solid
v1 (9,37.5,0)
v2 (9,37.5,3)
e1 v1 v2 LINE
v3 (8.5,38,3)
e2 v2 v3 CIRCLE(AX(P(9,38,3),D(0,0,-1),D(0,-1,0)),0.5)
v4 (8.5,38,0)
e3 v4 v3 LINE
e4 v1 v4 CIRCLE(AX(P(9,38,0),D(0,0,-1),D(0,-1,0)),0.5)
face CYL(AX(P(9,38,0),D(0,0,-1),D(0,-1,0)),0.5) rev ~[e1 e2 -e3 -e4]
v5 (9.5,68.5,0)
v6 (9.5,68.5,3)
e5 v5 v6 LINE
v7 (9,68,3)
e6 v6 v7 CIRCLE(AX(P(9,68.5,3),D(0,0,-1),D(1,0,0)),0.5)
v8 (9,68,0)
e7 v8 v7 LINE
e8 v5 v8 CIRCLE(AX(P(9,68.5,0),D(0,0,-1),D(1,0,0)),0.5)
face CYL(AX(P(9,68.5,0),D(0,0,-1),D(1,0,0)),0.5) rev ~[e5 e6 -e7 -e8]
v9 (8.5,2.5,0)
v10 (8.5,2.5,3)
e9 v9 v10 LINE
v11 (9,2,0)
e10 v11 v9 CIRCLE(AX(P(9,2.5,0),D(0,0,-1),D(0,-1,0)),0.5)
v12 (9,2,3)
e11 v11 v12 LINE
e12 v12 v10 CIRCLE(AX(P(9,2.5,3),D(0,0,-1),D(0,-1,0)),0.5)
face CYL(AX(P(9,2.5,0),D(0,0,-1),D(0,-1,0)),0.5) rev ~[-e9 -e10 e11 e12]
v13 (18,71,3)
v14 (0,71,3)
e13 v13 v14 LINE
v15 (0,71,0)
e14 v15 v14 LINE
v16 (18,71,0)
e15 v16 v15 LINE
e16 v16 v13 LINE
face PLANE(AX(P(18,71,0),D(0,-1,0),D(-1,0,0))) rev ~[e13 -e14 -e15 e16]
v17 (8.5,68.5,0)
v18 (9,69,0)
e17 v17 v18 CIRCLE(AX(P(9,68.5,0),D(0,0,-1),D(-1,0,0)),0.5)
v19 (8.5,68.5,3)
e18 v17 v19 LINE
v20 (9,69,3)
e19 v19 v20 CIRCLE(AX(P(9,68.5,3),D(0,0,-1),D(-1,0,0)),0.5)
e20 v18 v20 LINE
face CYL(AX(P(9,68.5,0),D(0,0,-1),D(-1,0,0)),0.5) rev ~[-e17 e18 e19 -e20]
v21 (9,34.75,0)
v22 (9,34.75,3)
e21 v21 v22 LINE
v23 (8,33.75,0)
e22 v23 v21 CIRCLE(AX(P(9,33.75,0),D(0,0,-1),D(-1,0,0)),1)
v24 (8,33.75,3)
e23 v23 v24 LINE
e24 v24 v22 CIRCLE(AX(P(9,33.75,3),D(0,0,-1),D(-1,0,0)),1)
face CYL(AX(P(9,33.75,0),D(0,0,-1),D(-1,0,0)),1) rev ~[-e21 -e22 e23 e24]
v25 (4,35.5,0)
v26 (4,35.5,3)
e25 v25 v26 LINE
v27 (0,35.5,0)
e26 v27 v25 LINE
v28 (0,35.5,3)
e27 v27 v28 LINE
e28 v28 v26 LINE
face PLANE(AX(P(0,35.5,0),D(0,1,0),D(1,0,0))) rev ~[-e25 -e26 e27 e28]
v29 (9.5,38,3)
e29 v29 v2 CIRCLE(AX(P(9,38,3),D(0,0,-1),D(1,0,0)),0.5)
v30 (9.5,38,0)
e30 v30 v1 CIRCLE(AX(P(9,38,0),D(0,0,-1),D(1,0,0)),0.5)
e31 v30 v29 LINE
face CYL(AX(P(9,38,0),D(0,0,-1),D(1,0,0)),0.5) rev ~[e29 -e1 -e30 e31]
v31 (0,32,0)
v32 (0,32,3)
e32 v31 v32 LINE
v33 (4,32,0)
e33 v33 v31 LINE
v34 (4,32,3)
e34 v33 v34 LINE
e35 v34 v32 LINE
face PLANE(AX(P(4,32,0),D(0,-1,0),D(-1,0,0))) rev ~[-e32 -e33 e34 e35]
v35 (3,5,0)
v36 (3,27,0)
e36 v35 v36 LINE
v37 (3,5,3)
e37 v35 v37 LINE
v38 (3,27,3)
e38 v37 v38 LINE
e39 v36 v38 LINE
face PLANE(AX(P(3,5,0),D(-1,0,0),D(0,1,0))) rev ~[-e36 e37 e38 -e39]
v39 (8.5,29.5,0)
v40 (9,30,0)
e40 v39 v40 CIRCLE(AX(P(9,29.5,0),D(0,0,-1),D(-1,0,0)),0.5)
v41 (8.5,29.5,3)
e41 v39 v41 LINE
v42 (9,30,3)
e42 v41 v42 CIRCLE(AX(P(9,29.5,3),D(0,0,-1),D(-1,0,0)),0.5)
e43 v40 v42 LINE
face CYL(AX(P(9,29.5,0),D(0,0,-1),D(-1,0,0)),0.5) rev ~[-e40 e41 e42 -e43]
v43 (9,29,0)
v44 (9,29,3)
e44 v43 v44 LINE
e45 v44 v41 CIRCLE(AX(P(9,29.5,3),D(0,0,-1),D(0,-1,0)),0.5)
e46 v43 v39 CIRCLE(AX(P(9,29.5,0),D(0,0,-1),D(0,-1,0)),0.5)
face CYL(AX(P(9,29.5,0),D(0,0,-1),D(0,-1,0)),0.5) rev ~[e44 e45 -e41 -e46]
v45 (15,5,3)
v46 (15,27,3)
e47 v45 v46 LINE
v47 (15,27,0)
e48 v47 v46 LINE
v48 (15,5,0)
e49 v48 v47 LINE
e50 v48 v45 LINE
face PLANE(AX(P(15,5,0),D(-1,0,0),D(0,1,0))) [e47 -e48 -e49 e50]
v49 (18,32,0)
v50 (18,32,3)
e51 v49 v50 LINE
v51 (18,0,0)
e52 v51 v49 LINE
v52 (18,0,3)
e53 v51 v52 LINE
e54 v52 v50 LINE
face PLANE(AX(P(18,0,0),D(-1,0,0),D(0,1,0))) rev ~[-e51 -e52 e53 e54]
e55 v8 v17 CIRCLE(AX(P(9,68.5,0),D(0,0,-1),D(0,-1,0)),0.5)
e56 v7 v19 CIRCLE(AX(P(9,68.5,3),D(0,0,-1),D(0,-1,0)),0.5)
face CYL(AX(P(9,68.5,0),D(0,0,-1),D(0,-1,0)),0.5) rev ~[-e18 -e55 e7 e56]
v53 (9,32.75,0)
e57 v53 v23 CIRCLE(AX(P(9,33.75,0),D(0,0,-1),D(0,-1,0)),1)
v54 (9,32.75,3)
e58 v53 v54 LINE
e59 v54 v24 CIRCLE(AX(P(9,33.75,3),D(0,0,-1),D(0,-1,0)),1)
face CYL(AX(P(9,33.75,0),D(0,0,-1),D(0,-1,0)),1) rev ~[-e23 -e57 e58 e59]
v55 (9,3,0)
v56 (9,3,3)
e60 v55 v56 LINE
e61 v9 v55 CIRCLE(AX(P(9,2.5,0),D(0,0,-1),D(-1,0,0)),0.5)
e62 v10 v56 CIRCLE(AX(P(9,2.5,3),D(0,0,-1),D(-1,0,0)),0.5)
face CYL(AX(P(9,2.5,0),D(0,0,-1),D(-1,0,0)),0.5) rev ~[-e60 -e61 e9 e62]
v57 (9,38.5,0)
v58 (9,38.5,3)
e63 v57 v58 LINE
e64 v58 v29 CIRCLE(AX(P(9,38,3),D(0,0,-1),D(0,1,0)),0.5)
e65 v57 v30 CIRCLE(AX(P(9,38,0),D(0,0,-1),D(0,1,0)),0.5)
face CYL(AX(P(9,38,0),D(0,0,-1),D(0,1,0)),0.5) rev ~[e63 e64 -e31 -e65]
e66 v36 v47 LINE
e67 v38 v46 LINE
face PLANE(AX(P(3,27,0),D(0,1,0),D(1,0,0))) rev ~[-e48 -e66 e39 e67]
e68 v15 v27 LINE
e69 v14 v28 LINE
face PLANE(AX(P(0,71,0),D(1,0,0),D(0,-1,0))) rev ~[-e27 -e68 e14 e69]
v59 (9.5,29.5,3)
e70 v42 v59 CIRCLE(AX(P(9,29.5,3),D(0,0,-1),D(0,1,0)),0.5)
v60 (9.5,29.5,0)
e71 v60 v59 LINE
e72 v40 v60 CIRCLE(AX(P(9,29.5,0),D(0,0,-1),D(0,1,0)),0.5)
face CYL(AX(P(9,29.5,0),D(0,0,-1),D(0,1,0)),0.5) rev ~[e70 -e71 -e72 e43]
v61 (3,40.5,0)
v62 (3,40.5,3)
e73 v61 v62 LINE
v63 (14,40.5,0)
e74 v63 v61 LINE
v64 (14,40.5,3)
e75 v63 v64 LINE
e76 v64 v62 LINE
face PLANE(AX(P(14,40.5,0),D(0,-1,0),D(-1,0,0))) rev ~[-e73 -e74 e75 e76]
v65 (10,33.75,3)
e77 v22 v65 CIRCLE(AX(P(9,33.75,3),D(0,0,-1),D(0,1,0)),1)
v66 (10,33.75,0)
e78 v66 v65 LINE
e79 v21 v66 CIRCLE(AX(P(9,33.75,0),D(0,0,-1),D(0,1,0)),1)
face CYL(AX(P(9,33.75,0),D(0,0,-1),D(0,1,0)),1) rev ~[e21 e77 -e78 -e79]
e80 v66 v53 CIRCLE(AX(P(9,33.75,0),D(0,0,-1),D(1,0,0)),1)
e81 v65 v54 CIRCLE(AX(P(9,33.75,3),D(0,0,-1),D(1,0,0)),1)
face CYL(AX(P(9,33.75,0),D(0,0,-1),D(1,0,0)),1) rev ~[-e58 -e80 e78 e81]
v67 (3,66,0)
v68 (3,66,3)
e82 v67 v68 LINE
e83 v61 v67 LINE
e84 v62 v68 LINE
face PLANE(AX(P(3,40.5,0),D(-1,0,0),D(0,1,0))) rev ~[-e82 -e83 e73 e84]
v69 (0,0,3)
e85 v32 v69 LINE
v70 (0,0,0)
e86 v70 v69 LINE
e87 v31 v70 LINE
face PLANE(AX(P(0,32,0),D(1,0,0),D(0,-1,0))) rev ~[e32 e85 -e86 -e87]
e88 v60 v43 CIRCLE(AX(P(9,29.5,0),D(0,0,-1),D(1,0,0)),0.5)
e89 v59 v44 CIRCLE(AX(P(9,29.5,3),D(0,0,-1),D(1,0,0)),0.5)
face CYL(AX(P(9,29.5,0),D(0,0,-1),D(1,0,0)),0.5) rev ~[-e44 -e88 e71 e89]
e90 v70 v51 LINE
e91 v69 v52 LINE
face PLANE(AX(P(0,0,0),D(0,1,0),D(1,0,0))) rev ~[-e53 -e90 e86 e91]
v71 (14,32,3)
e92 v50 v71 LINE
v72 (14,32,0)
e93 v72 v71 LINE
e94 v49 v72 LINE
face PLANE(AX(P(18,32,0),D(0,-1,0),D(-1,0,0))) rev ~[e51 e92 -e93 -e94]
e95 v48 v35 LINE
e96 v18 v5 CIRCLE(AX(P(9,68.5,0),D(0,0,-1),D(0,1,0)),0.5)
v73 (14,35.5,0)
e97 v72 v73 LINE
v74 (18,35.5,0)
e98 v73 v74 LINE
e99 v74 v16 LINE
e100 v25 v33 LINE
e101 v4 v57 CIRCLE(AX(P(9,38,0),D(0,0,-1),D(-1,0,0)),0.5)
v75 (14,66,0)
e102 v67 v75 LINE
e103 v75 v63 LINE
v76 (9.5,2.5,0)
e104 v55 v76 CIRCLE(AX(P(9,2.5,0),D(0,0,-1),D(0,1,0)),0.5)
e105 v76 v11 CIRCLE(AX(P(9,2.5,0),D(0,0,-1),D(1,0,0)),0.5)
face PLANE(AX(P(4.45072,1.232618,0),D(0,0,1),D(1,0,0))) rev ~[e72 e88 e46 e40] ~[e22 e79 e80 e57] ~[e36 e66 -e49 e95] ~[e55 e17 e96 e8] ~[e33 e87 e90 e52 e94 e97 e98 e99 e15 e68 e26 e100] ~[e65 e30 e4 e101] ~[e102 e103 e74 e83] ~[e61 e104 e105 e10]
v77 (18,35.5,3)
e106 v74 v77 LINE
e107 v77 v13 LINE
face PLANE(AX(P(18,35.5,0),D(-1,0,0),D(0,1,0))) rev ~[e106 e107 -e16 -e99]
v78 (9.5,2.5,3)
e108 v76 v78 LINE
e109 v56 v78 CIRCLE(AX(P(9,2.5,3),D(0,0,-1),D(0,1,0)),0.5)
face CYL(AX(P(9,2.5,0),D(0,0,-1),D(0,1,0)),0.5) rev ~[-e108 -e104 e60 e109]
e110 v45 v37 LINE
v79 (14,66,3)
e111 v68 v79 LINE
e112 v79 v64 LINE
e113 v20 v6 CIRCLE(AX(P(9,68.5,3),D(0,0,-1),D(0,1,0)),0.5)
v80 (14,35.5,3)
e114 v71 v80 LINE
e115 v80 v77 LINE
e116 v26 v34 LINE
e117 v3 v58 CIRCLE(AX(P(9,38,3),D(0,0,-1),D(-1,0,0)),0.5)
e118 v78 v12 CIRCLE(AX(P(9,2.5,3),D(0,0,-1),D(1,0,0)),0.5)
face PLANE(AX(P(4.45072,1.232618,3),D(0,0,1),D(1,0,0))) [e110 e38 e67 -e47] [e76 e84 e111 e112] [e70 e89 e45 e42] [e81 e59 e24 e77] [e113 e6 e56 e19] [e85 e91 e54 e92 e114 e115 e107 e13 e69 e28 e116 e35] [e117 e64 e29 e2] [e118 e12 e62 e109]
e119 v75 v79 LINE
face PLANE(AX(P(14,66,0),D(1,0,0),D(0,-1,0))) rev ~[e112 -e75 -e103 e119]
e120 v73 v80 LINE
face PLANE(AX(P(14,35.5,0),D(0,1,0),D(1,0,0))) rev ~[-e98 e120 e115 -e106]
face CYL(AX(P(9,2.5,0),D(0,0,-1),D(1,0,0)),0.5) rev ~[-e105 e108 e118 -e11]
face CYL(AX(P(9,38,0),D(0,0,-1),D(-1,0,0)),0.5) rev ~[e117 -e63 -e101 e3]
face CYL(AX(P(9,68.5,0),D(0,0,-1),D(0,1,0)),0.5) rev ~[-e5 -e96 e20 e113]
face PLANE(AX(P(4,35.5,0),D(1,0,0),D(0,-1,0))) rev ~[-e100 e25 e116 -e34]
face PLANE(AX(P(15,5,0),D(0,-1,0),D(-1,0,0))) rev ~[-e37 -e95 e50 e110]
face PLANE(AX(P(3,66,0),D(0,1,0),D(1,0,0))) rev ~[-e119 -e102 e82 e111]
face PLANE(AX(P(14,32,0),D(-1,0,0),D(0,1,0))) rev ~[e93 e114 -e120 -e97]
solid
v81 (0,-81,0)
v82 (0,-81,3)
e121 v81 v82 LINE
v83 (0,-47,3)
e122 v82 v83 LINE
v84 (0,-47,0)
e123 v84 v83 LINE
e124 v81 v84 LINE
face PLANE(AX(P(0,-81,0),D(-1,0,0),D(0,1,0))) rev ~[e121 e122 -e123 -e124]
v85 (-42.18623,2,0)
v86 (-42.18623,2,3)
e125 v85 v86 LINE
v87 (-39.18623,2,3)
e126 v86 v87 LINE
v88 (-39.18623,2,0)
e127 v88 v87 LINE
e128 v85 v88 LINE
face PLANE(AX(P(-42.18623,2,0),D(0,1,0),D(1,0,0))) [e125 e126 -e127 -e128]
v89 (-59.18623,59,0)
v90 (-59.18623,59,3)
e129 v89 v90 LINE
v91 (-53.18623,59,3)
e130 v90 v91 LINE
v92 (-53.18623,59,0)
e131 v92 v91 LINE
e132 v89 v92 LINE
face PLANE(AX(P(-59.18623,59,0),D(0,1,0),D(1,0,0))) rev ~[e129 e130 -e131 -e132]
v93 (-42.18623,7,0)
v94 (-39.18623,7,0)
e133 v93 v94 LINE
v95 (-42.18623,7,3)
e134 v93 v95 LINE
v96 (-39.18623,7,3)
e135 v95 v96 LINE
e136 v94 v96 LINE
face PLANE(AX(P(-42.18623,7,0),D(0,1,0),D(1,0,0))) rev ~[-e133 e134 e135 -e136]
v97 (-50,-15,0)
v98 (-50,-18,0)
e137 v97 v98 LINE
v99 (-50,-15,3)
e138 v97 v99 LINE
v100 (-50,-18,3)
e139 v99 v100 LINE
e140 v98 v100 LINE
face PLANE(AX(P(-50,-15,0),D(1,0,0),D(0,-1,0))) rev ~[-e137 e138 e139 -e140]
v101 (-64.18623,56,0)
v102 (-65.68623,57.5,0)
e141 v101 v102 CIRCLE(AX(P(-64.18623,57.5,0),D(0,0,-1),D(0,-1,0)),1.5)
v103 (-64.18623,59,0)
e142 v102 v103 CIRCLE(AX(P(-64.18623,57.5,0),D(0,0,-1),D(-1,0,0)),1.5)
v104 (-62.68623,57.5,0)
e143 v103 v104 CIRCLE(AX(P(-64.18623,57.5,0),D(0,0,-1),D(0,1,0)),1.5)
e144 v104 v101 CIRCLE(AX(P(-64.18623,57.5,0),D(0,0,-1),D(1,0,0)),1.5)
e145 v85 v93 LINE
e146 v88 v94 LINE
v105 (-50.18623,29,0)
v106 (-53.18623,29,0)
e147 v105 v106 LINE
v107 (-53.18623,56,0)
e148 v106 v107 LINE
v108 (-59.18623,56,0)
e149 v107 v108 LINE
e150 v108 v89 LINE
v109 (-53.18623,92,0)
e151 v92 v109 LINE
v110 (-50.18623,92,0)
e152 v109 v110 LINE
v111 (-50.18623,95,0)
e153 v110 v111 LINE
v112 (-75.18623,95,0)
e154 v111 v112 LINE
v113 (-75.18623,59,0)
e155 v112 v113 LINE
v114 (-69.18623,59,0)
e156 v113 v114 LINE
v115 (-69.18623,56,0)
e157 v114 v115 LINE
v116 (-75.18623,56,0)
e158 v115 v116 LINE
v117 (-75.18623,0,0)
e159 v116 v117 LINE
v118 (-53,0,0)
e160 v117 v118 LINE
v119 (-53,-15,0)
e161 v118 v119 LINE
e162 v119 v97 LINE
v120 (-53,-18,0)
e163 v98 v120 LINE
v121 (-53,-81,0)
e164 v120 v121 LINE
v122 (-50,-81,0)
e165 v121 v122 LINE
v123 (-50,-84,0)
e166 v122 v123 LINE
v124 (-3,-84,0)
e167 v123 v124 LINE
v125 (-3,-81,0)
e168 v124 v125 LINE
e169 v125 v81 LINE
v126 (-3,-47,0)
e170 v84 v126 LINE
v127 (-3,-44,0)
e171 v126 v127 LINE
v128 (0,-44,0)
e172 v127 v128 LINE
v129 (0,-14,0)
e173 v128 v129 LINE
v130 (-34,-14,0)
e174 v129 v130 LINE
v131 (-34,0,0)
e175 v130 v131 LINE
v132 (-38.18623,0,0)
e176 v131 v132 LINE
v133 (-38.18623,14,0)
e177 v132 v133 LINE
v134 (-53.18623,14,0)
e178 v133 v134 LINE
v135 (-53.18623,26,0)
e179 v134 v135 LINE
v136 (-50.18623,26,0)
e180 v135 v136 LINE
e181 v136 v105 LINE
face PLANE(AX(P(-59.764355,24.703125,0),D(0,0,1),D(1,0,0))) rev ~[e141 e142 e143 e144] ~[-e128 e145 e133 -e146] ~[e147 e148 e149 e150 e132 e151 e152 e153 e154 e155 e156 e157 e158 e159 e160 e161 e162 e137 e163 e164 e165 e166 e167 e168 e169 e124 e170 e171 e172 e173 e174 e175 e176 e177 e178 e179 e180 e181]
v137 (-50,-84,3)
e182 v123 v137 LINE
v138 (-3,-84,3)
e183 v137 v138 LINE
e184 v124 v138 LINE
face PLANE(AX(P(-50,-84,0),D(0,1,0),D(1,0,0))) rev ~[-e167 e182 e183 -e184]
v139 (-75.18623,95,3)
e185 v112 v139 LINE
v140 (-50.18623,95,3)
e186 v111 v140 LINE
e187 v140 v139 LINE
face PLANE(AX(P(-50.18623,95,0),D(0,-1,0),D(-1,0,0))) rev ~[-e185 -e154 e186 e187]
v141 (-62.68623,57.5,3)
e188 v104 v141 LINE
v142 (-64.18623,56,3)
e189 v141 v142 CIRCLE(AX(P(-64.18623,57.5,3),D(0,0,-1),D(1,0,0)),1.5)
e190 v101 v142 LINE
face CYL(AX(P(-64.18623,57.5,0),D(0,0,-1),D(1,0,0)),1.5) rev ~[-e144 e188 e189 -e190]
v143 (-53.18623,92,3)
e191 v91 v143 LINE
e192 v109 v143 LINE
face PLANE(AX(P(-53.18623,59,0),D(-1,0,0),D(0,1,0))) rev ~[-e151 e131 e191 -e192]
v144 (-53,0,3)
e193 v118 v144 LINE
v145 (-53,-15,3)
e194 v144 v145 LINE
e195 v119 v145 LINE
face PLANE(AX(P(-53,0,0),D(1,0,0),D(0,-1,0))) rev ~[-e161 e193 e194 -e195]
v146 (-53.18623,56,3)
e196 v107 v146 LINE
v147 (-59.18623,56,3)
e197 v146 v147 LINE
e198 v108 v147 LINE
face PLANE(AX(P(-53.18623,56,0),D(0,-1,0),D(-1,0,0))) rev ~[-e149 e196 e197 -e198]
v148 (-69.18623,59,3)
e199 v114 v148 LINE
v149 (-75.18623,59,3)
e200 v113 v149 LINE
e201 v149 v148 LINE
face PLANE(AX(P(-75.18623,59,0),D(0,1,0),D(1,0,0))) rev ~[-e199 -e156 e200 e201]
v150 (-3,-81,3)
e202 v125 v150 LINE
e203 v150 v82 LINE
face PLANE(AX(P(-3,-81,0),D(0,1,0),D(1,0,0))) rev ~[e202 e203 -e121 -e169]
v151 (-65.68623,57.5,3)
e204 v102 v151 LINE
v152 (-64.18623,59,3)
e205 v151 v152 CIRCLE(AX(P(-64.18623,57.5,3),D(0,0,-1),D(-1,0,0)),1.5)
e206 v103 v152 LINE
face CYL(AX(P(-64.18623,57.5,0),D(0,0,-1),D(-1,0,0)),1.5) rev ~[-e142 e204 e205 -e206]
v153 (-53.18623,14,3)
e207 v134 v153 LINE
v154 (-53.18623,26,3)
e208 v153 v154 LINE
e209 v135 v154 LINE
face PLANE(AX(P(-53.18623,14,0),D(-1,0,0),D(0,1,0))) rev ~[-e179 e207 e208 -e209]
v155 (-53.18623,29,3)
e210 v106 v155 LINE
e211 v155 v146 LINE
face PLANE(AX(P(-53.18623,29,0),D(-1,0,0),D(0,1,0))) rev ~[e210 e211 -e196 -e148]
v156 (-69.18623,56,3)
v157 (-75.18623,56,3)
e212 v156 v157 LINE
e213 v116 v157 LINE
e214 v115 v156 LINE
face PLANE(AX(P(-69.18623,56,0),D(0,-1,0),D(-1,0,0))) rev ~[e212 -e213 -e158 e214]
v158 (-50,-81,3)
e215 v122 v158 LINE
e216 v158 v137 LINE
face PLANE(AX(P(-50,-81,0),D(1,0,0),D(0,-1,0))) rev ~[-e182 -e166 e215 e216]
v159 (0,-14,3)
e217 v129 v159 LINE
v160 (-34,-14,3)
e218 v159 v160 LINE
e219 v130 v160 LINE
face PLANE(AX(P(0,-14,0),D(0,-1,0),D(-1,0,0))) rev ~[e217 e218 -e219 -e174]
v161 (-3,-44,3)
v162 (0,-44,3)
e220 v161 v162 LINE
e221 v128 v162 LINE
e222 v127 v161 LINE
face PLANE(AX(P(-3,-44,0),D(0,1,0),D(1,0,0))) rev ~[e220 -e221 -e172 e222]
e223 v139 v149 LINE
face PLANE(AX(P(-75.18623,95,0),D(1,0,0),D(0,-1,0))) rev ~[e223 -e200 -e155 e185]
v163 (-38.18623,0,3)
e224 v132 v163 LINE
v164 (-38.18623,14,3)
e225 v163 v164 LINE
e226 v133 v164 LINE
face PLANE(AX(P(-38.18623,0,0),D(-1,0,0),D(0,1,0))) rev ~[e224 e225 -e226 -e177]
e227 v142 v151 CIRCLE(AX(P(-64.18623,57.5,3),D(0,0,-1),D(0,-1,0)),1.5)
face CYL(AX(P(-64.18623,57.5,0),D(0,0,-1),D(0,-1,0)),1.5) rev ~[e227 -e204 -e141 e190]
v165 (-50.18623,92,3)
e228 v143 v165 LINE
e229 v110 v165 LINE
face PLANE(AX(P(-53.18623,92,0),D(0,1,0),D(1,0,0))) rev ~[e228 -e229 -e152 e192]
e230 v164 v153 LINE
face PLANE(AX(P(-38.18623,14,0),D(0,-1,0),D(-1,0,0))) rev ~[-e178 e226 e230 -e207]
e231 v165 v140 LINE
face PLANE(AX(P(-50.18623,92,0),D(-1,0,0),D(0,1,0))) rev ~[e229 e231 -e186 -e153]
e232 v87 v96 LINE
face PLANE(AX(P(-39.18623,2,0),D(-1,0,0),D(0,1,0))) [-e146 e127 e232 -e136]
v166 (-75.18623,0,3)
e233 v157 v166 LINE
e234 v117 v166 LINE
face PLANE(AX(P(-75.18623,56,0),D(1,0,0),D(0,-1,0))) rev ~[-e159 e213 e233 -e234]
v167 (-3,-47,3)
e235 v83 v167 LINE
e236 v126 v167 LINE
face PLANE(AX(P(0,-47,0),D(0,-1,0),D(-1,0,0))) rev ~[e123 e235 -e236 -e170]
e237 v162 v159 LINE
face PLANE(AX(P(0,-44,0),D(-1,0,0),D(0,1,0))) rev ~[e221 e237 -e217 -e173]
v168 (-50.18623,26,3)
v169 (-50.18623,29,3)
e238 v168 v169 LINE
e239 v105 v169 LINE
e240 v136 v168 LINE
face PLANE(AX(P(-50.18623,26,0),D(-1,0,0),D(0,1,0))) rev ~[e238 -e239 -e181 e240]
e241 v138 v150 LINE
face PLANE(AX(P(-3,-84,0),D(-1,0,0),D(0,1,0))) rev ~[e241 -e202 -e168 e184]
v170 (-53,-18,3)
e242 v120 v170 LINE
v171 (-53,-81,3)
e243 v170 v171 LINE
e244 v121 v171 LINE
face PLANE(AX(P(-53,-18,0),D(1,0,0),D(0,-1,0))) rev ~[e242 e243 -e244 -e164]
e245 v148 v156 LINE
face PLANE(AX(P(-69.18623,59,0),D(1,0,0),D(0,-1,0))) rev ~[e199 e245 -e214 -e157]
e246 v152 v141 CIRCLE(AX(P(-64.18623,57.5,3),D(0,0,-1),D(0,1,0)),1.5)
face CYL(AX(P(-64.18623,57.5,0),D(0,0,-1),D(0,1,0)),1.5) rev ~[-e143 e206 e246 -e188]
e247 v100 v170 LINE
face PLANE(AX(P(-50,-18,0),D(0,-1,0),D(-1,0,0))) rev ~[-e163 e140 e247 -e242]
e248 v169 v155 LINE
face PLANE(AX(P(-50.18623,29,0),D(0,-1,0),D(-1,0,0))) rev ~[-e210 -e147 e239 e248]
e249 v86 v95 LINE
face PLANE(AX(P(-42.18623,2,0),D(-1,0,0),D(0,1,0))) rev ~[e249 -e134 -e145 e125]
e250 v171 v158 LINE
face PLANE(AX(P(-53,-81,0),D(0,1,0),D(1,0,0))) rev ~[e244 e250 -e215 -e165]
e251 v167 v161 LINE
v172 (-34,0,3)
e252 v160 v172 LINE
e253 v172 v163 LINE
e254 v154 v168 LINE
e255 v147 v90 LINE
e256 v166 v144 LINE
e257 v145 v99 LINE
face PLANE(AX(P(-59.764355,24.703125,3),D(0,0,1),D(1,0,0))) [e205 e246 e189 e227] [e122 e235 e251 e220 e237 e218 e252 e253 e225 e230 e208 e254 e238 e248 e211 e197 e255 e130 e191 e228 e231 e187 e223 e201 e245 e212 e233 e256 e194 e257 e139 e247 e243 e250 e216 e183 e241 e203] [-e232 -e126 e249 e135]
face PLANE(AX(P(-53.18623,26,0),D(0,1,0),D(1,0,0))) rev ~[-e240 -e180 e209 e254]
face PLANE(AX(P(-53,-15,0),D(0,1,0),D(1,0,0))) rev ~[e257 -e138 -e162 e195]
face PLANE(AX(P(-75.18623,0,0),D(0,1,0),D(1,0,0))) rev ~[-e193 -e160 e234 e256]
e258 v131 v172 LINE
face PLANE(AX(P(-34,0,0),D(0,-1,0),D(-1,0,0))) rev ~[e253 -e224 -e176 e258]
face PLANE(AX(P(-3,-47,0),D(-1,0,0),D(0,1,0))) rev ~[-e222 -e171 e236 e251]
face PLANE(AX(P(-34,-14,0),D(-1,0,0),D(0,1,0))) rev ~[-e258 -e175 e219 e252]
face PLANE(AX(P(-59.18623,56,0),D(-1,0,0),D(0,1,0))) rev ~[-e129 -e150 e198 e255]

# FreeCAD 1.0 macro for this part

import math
import FreeCAD as App
import Part
import Sketcher
Q = App.Units.Quantity

doc = App.newDocument("Part")
body = doc.addObject("PartDesign::Body", "Body")

sketch1 = body.newObject("Sketcher::SketchObject", "Sketch")
sketch1.AttachmentSupport = (doc.getObject("XY_Plane"), [""])
sketch1.MapMode = "FlatFace"
sketch1.addGeometry(Part.LineSegment(App.Vector(0, 0, 0), App.Vector(18, 0, 0)), False)
sketch1.addGeometry(Part.LineSegment(App.Vector(18, 0, 0), App.Vector(18, 32, 0)), False)
sketch1.addGeometry(Part.LineSegment(App.Vector(18, 32, 0), App.Vector(14, 32, 0)), False)
sketch1.addGeometry(Part.LineSegment(App.Vector(14, 32, 0), App.Vector(14, 35.5, 0)), False)
sketch1.addGeometry(Part.LineSegment(App.Vector(14, 35.5, 0), App.Vector(18, 35.5, 0)), False)
sketch1.addGeometry(Part.LineSegment(App.Vector(18, 35.5, 0), App.Vector(18, 71, 0)), False)
sketch1.addGeometry(Part.LineSegment(App.Vector(18, 71, 0), App.Vector(0, 71, 0)), False)
sketch1.addGeometry(Part.LineSegment(App.Vector(0, 71, 0), App.Vector(0, 35.5, 0)), False)
sketch1.addGeometry(Part.LineSegment(App.Vector(0, 35.5, 0), App.Vector(4, 35.5, 0)), False)
sketch1.addGeometry(Part.LineSegment(App.Vector(4, 35.5, 0), App.Vector(4, 32, 0)), False)
sketch1.addGeometry(Part.LineSegment(App.Vector(4, 32, 0), App.Vector(0, 32, 0)), False)
sketch1.addGeometry(Part.LineSegment(App.Vector(0, 32, 0), App.Vector(0, 0, 0)), False)
sketch1.addGeometry(Part.LineSegment(App.Vector(14, 66, 0), App.Vector(14, 40.5, 0)), False)
sketch1.addGeometry(Part.LineSegment(App.Vector(14, 40.5, 0), App.Vector(3, 40.5, 0)), False)
sketch1.addGeometry(Part.LineSegment(App.Vector(3, 40.5, 0), App.Vector(3, 66, 0)), False)
sketch1.addGeometry(Part.LineSegment(App.Vector(3, 66, 0), App.Vector(14, 66, 0)), False)
sketch1.addGeometry(Part.ArcOfCircle(Part.Circle(App.Vector(9, 68.5, 0), App.Vector(0, 0, 1), 0.5), math.radians(180), math.radians(270)), False)
sketch1.addGeometry(Part.ArcOfCircle(Part.Circle(App.Vector(9, 68.5, 0), App.Vector(0, 0, 1), 0.5), math.radians(90), math.radians(180)), False)
sketch1.addGeometry(Part.ArcOfCircle(Part.Circle(App.Vector(9, 68.5, 0), App.Vector(0, 0, 1), 0.5), math.radians(0), math.radians(90)), False)
sketch1.addGeometry(Part.ArcOfCircle(Part.Circle(App.Vector(9, 68.5, 0), App.Vector(0, 0, 1), 0.5), math.radians(-90), math.radians(0)), False)
sketch1.addGeometry(Part.ArcOfCircle(Part.Circle(App.Vector(9, 38, 0), App.Vector(0, 0, 1), 0.5), math.radians(0), math.radians(90)), False)
sketch1.addGeometry(Part.ArcOfCircle(Part.Circle(App.Vector(9, 38, 0), App.Vector(0, 0, 1), 0.5), math.radians(-90), math.radians(0)), False)
sketch1.addGeometry(Part.ArcOfCircle(Part.Circle(App.Vector(9, 38, 0), App.Vector(0, 0, 1), 0.5), math.radians(180), math.radians(270)), False)
sketch1.addGeometry(Part.ArcOfCircle(Part.Circle(App.Vector(9, 38, 0), App.Vector(0, 0, 1), 0.5), math.radians(90), math.radians(180)), False)
sketch1.addGeometry(Part.ArcOfCircle(Part.Circle(App.Vector(9, 33.8, 0), App.Vector(0, 0, 1), 1), math.radians(-90), math.radians(0)), False)
sketch1.addGeometry(Part.ArcOfCircle(Part.Circle(App.Vector(9, 33.8, 0), App.Vector(0, 0, 1), 1), math.radians(180), math.radians(270)), False)
sketch1.addGeometry(Part.ArcOfCircle(Part.Circle(App.Vector(9, 33.8, 0), App.Vector(0, 0, 1), 1), math.radians(90), math.radians(180)), False)
sketch1.addGeometry(Part.ArcOfCircle(Part.Circle(App.Vector(9, 33.8, 0), App.Vector(0, 0, 1), 1), math.radians(0), math.radians(90)), False)
sketch1.addGeometry(Part.ArcOfCircle(Part.Circle(App.Vector(9, 29.5, 0), App.Vector(0, 0, 1), 0.5), math.radians(-90), math.radians(0)), False)
sketch1.addGeometry(Part.ArcOfCircle(Part.Circle(App.Vector(9, 29.5, 0), App.Vector(0, 0, 1), 0.5), math.radians(180), math.radians(270)), False)
sketch1.addGeometry(Part.ArcOfCircle(Part.Circle(App.Vector(9, 29.5, 0), App.Vector(0, 0, 1), 0.5), math.radians(90), math.radians(180)), False)
sketch1.addGeometry(Part.ArcOfCircle(Part.Circle(App.Vector(9, 29.5, 0), App.Vector(0, 0, 1), 0.5), math.radians(0), math.radians(90)), False)
sketch1.addGeometry(Part.LineSegment(App.Vector(15, 27, 0), App.Vector(15, 5, 0)), False)
sketch1.addGeometry(Part.LineSegment(App.Vector(15, 5, 0), App.Vector(3, 5, 0)), False)
sketch1.addGeometry(Part.LineSegment(App.Vector(3, 5, 0), App.Vector(3, 27, 0)), False)
sketch1.addGeometry(Part.LineSegment(App.Vector(3, 27, 0), App.Vector(15, 27, 0)), False)
sketch1.addGeometry(Part.ArcOfCircle(Part.Circle(App.Vector(9, 2.5, 0), App.Vector(0, 0, 1), 0.5), math.radians(-90), math.radians(0)), False)
sketch1.addGeometry(Part.ArcOfCircle(Part.Circle(App.Vector(9, 2.5, 0), App.Vector(0, 0, 1), 0.5), math.radians(180), math.radians(270)), False)
sketch1.addGeometry(Part.ArcOfCircle(Part.Circle(App.Vector(9, 2.5, 0), App.Vector(0, 0, 1), 0.5), math.radians(90), math.radians(180)), False)
sketch1.addGeometry(Part.ArcOfCircle(Part.Circle(App.Vector(9, 2.5, 0), App.Vector(0, 0, 1), 0.5), math.radians(0), math.radians(90)), False)
sketch1.addConstraint(Sketcher.Constraint("Coincident", 0, 2, 1, 1))
sketch1.addConstraint(Sketcher.Constraint("Coincident", 1, 2, 2, 1))
sketch1.addConstraint(Sketcher.Constraint("Coincident", 2, 2, 3, 1))
sketch1.addConstraint(Sketcher.Constraint("Coincident", 3, 2, 4, 1))
sketch1.addConstraint(Sketcher.Constraint("Coincident", 4, 2, 5, 1))
sketch1.addConstraint(Sketcher.Constraint("Coincident", 5, 2, 6, 1))
sketch1.addConstraint(Sketcher.Constraint("Coincident", 6, 2, 7, 1))
sketch1.addConstraint(Sketcher.Constraint("Coincident", 7, 2, 8, 1))
sketch1.addConstraint(Sketcher.Constraint("Coincident", 8, 2, 9, 1))
sketch1.addConstraint(Sketcher.Constraint("Coincident", 9, 2, 10, 1))
sketch1.addConstraint(Sketcher.Constraint("Coincident", 10, 2, 11, 1))
sketch1.addConstraint(Sketcher.Constraint("Coincident", 11, 2, 0, 1))
sketch1.addConstraint(Sketcher.Constraint("Coincident", 12, 2, 13, 1))
sketch1.addConstraint(Sketcher.Constraint("Coincident", 13, 2, 14, 1))
sketch1.addConstraint(Sketcher.Constraint("Coincident", 14, 2, 15, 1))
sketch1.addConstraint(Sketcher.Constraint("Coincident", 15, 2, 12, 1))
sketch1.addConstraint(Sketcher.Constraint("Tangent", 16, 1, 17, 2))
sketch1.addConstraint(Sketcher.Constraint("Tangent", 17, 1, 18, 2))
sketch1.addConstraint(Sketcher.Constraint("Tangent", 18, 1, 19, 2))
sketch1.addConstraint(Sketcher.Constraint("Tangent", 19, 1, 16, 2))
sketch1.addConstraint(Sketcher.Constraint("Tangent", 20, 1, 21, 2))
sketch1.addConstraint(Sketcher.Constraint("Tangent", 21, 1, 22, 2))
sketch1.addConstraint(Sketcher.Constraint("Tangent", 22, 1, 23, 2))
sketch1.addConstraint(Sketcher.Constraint("Tangent", 23, 1, 20, 2))
sketch1.addConstraint(Sketcher.Constraint("Tangent", 24, 1, 25, 2))
sketch1.addConstraint(Sketcher.Constraint("Tangent", 25, 1, 26, 2))
sketch1.addConstraint(Sketcher.Constraint("Tangent", 26, 1, 27, 2))
sketch1.addConstraint(Sketcher.Constraint("Tangent", 27, 1, 24, 2))
sketch1.addConstraint(Sketcher.Constraint("Tangent", 28, 1, 29, 2))
sketch1.addConstraint(Sketcher.Constraint("Tangent", 29, 1, 30, 2))
sketch1.addConstraint(Sketcher.Constraint("Tangent", 30, 1, 31, 2))
sketch1.addConstraint(Sketcher.Constraint("Tangent", 31, 1, 28, 2))
sketch1.addConstraint(Sketcher.Constraint("Coincident", 32, 2, 33, 1))
sketch1.addConstraint(Sketcher.Constraint("Coincident", 33, 2, 34, 1))
sketch1.addConstraint(Sketcher.Constraint("Coincident", 34, 2, 35, 1))
sketch1.addConstraint(Sketcher.Constraint("Coincident", 35, 2, 32, 1))
sketch1.addConstraint(Sketcher.Constraint("Tangent", 36, 1, 37, 2))
sketch1.addConstraint(Sketcher.Constraint("Tangent", 37, 1, 38, 2))
sketch1.addConstraint(Sketcher.Constraint("Tangent", 38, 1, 39, 2))
sketch1.addConstraint(Sketcher.Constraint("Tangent", 39, 1, 36, 2))
sketch1.addConstraint(Sketcher.Constraint("Horizontal", 0))
sketch1.addConstraint(Sketcher.Constraint("Vertical", 1))
sketch1.addConstraint(Sketcher.Constraint("Horizontal", 2))
sketch1.addConstraint(Sketcher.Constraint("Vertical", 3))
sketch1.addConstraint(Sketcher.Constraint("Horizontal", 4))
sketch1.addConstraint(Sketcher.Constraint("Vertical", 5))
sketch1.addConstraint(Sketcher.Constraint("Horizontal", 6))
sketch1.addConstraint(Sketcher.Constraint("Vertical", 7))
sketch1.addConstraint(Sketcher.Constraint("Horizontal", 8))
sketch1.addConstraint(Sketcher.Constraint("Vertical", 9))
sketch1.addConstraint(Sketcher.Constraint("Horizontal", 10))
sketch1.addConstraint(Sketcher.Constraint("Vertical", 11))
sketch1.addConstraint(Sketcher.Constraint("Vertical", 12))
sketch1.addConstraint(Sketcher.Constraint("Horizontal", 13))
sketch1.addConstraint(Sketcher.Constraint("Vertical", 14))
sketch1.addConstraint(Sketcher.Constraint("Horizontal", 15))
sketch1.addConstraint(Sketcher.Constraint("Vertical", 32))
sketch1.addConstraint(Sketcher.Constraint("Horizontal", 33))
sketch1.addConstraint(Sketcher.Constraint("Vertical", 34))
sketch1.addConstraint(Sketcher.Constraint("Horizontal", 35))
sketch1.addConstraint(Sketcher.Constraint("Coincident", 11, 2, -1, 1))
sketch1.addConstraint(Sketcher.Constraint("Equal", 16, 17))
sketch1.addConstraint(Sketcher.Constraint("Equal", 19, 20))
sketch1.addConstraint(Sketcher.Constraint("Equal", 20, 21))
sketch1.addConstraint(Sketcher.Constraint("Equal", 24, 25))
sketch1.addConstraint(Sketcher.Constraint("Equal", 23, 28))
sketch1.addConstraint(Sketcher.Constraint("Equal", 28, 29))
sketch1.addConstraint(Sketcher.Constraint("Equal", 31, 36))
sketch1.addConstraint(Sketcher.Constraint("Equal", 36, 37))
sketch1.addConstraint(Sketcher.Constraint("PointOnObject", 6, 2, -2))
sketch1.addConstraint(Sketcher.Constraint("Horizontal", 4, 2, 7, 2))
sketch1.addConstraint(Sketcher.Constraint("Horizontal", 2, 2, 9, 2))
sketch1.addConstraint(Sketcher.Constraint("Horizontal", 19, 3, 16, 1))
sketch1.addConstraint(Sketcher.Constraint("Horizontal", 16, 1, 18, 1))
sketch1.addConstraint(Sketcher.Constraint("Horizontal", 23, 3, 20, 1))
sketch1.addConstraint(Sketcher.Constraint("Horizontal", 20, 1, 22, 1))
sketch1.addConstraint(Sketcher.Constraint("Horizontal", 27, 3, 25, 1))
sketch1.addConstraint(Sketcher.Constraint("Horizontal", 25, 1, 27, 1))
sketch1.addConstraint(Sketcher.Constraint("Horizontal", 31, 3, 29, 1))
sketch1.addConstraint(Sketcher.Constraint("Horizontal", 29, 1, 31, 1))
sketch1.addConstraint(Sketcher.Constraint("Horizontal", 39, 3, 37, 1))
sketch1.addConstraint(Sketcher.Constraint("Horizontal", 37, 1, 39, 1))
sketch1.addConstraint(Sketcher.Constraint("Vertical", 19, 3, 20, 3))
sketch1.addConstraint(Sketcher.Constraint("Vertical", 23, 3, 24, 3))
sketch1.addConstraint(Sketcher.Constraint("Vertical", 27, 3, 28, 3))
sketch1.addConstraint(Sketcher.Constraint("Vertical", 31, 3, 36, 3))
sketch1.addConstraint(Sketcher.Constraint("Vertical", 1, 2, 4, 2))
sketch1.addConstraint(Sketcher.Constraint("Vertical", 3, 2, 12, 2))
sketch1.addConstraint(Sketcher.Constraint("Vertical", 39, 3, 17, 1))
sketch1.addConstraint(Sketcher.Constraint("Vertical", 17, 1, 19, 1))
sketch1.addConstraint(Sketcher.Constraint("Vertical", 19, 1, 21, 1))
sketch1.addConstraint(Sketcher.Constraint("Vertical", 21, 1, 23, 1))
sketch1.addConstraint(Sketcher.Constraint("Vertical", 23, 1, 24, 1))
sketch1.addConstraint(Sketcher.Constraint("Vertical", 24, 1, 26, 1))
sketch1.addConstraint(Sketcher.Constraint("Vertical", 26, 1, 28, 1))
sketch1.addConstraint(Sketcher.Constraint("Vertical", 28, 1, 30, 1))
sketch1.addConstraint(Sketcher.Constraint("Vertical", 14, 2, 33, 2))
sketch1.addConstraint(Sketcher.Constraint("Vertical", 30, 1, 36, 1))
sketch1.addConstraint(Sketcher.Constraint("Vertical", 36, 1, 38, 1))
sketch1.addConstraint(Sketcher.Constraint("Equal", 4, 8))
sketch1.addConstraint(Sketcher.Constraint("Radius", 24, Q("1 mm")))
sketch1.addConstraint(Sketcher.Constraint("Radius", 16, Q("0.5 mm")))
sketch1.addConstraint(Sketcher.Constraint("DistanceX", 0, 1, 0, 2, Q("18 mm")))
sketch1.addConstraint(Sketcher.Constraint("DistanceX", 2, 2, 2, 1, Q("4 mm")))
sketch1.addConstraint(Sketcher.Constraint("DistanceX", 13, 2, 13, 1, Q("11 mm")))
sketch1.addConstraint(Sketcher.Constraint("DistanceX", 33, 2, 33, 1, Q("12 mm")))
sketch1.addConstraint(Sketcher.Constraint("DistanceY", 1, 1, 1, 2, Q("32 mm")))
sketch1.addConstraint(Sketcher.Constraint("DistanceY", 32, 2, 32, 1, Q("22 mm")))
sketch1.addConstraint(Sketcher.Constraint("DistanceY", 3, 1, 3, 2, Q("3.5 mm")))
sketch1.addConstraint(Sketcher.Constraint("DistanceY", 5, 1, 5, 2, Q("35.5 mm")))
sketch1.addConstraint(Sketcher.Constraint("DistanceY", 12, 2, 12, 1, Q("25.5 mm")))
sketch1.addConstraint(Sketcher.Constraint("DistanceX", -1, 1, 16, 3, Q("9 mm")))
sketch1.addConstraint(Sketcher.Constraint("DistanceY", -1, 1, 20, 3, Q("38 mm")))
sketch1.addConstraint(Sketcher.Constraint("DistanceY", -1, 1, 14, 2, Q("66 mm")))
sketch1.addConstraint(Sketcher.Constraint("DistanceY", -1, 1, 17, 1, Q("69 mm")))
sketch1.addConstraint(Sketcher.Constraint("DistanceY", -1, 1, 28, 1, Q("29 mm")))
sketch1.addConstraint(Sketcher.Constraint("DistanceY", -1, 1, 32, 2, Q("5 mm")))
sketch1.addConstraint(Sketcher.Constraint("DistanceY", -1, 1, 36, 1, Q("2 mm")))
sketch1.addConstraint(Sketcher.Constraint("DistanceY", -1, 1, 24, 3, Q("33.75 mm")))
pad1 = body.newObject("PartDesign::Pad", "Pad")
pad1.Profile = sketch1
pad1.Length = 3
body2 = doc.addObject("PartDesign::Body", "Body001")

sketch2 = body2.newObject("Sketcher::SketchObject", "Sketch001")
sketch2.AttachmentSupport = (doc.getObject("XY_Plane001"), [""])
sketch2.MapMode = "FlatFace"
sketch2.addGeometry(Part.LineSegment(App.Vector(-34, 0, 0), App.Vector(-53, 0, 0)), False)
sketch2.addGeometry(Part.LineSegment(App.Vector(-53, 0, 0), App.Vector(-53, -15, 0)), False)
sketch2.addGeometry(Part.LineSegment(App.Vector(-53, -15, 0), App.Vector(-50, -15, 0)), False)
sketch2.addGeometry(Part.LineSegment(App.Vector(-50, -15, 0), App.Vector(-50, -18, 0)), False)
sketch2.addGeometry(Part.LineSegment(App.Vector(-50, -18, 0), App.Vector(-53, -18, 0)), False)
sketch2.addGeometry(Part.LineSegment(App.Vector(-53, -18, 0), App.Vector(-53, -81, 0)), False)
sketch2.addGeometry(Part.LineSegment(App.Vector(-53, -81, 0), App.Vector(-50, -81, 0)), False)
sketch2.addGeometry(Part.LineSegment(App.Vector(-50, -81, 0), App.Vector(-50, -84, 0)), False)
sketch2.addGeometry(Part.LineSegment(App.Vector(-50, -84, 0), App.Vector(-3, -84, 0)), False)
sketch2.addGeometry(Part.LineSegment(App.Vector(-3, -84, 0), App.Vector(-3, -81, 0)), False)
sketch2.addGeometry(Part.LineSegment(App.Vector(-3, -81, 0), App.Vector(0, -81, 0)), False)
sketch2.addGeometry(Part.LineSegment(App.Vector(0, -81, 0), App.Vector(0, -47, 0)), False)
sketch2.addGeometry(Part.LineSegment(App.Vector(0, -47, 0), App.Vector(-3, -47, 0)), False)
sketch2.addGeometry(Part.LineSegment(App.Vector(-3, -47, 0), App.Vector(-3, -44, 0)), False)
sketch2.addGeometry(Part.LineSegment(App.Vector(-3, -44, 0), App.Vector(0, -44, 0)), False)
sketch2.addGeometry(Part.LineSegment(App.Vector(0, -44, 0), App.Vector(0, -14, 0)), False)
sketch2.addGeometry(Part.LineSegment(App.Vector(0, -14, 0), App.Vector(-34, -14, 0)), False)
sketch2.addGeometry(Part.LineSegment(App.Vector(-34, -14, 0), App.Vector(-34, 0, 0)), False)
sketch2.addConstraint(Sketcher.Constraint("Coincident", 0, 2, 1, 1))
sketch2.addConstraint(Sketcher.Constraint("Coincident", 1, 2, 2, 1))
sketch2.addConstraint(Sketcher.Constraint("Coincident", 2, 2, 3, 1))
sketch2.addConstraint(Sketcher.Constraint("Coincident", 3, 2, 4, 1))
sketch2.addConstraint(Sketcher.Constraint("Coincident", 4, 2, 5, 1))
sketch2.addConstraint(Sketcher.Constraint("Coincident", 5, 2, 6, 1))
sketch2.addConstraint(Sketcher.Constraint("Coincident", 6, 2, 7, 1))
sketch2.addConstraint(Sketcher.Constraint("Coincident", 7, 2, 8, 1))
sketch2.addConstraint(Sketcher.Constraint("Coincident", 8, 2, 9, 1))
sketch2.addConstraint(Sketcher.Constraint("Coincident", 9, 2, 10, 1))
sketch2.addConstraint(Sketcher.Constraint("Coincident", 10, 2, 11, 1))
sketch2.addConstraint(Sketcher.Constraint("Coincident", 11, 2, 12, 1))
sketch2.addConstraint(Sketcher.Constraint("Coincident", 12, 2, 13, 1))
sketch2.addConstraint(Sketcher.Constraint("Coincident", 13, 2, 14, 1))
sketch2.addConstraint(Sketcher.Constraint("Coincident", 14, 2, 15, 1))
sketch2.addConstraint(Sketcher.Constraint("Coincident", 15, 2, 16, 1))
sketch2.addConstraint(Sketcher.Constraint("Coincident", 16, 2, 17, 1))
sketch2.addConstraint(Sketcher.Constraint("Coincident", 17, 2, 0, 1))
sketch2.addConstraint(Sketcher.Constraint("Horizontal", 0))
sketch2.addConstraint(Sketcher.Constraint("Vertical", 1))
sketch2.addConstraint(Sketcher.Constraint("Horizontal", 2))
sketch2.addConstraint(Sketcher.Constraint("Vertical", 3))
sketch2.addConstraint(Sketcher.Constraint("Horizontal", 4))
sketch2.addConstraint(Sketcher.Constraint("Vertical", 5))
sketch2.addConstraint(Sketcher.Constraint("Horizontal", 6))
sketch2.addConstraint(Sketcher.Constraint("Vertical", 7))
sketch2.addConstraint(Sketcher.Constraint("Horizontal", 8))
sketch2.addConstraint(Sketcher.Constraint("Vertical", 9))
sketch2.addConstraint(Sketcher.Constraint("Horizontal", 10))
sketch2.addConstraint(Sketcher.Constraint("Vertical", 11))
sketch2.addConstraint(Sketcher.Constraint("Horizontal", 12))
sketch2.addConstraint(Sketcher.Constraint("Vertical", 13))
sketch2.addConstraint(Sketcher.Constraint("Horizontal", 14))
sketch2.addConstraint(Sketcher.Constraint("Vertical", 15))
sketch2.addConstraint(Sketcher.Constraint("Horizontal", 16))
sketch2.addConstraint(Sketcher.Constraint("Vertical", 17))
sketch2.addConstraint(Sketcher.Constraint("PointOnObject", 0, 2, -1))
sketch2.addConstraint(Sketcher.Constraint("PointOnObject", 10, 2, -2))
sketch2.addConstraint(Sketcher.Constraint("PointOnObject", 14, 2, -2))
sketch2.addConstraint(Sketcher.Constraint("Horizontal", 6, 2, 9, 2))
sketch2.addConstraint(Sketcher.Constraint("Vertical", 1, 2, 4, 2))
sketch2.addConstraint(Sketcher.Constraint("Vertical", 3, 2, 6, 2))
sketch2.addConstraint(Sketcher.Constraint("Vertical", 9, 2, 12, 2))
sketch2.addConstraint(Sketcher.Constraint("Equal", 6, 10))
sketch2.addConstraint(Sketcher.Constraint("Equal", 14, 3))
sketch2.addConstraint(Sketcher.Constraint("Equal", 3, 7))
sketch2.addConstraint(Sketcher.Constraint("Equal", 16, 11))
sketch2.addConstraint(Sketcher.Constraint("Equal", 9, 13))
sketch2.addConstraint(Sketcher.Constraint("DistanceX", 0, 2, 0, 1, Q("19 mm")))
sketch2.addConstraint(Sketcher.Constraint("DistanceX", 2, 1, 2, 2, Q("3 mm")))
sketch2.addConstraint(Sketcher.Constraint("DistanceX", 8, 1, 8, 2, Q("47 mm")))
sketch2.addConstraint(Sketcher.Constraint("DistanceY", 1, 2, 1, 1, Q("15 mm")))
sketch2.addConstraint(Sketcher.Constraint("DistanceY", 5, 2, 5, 1, Q("63 mm")))
sketch2.addConstraint(Sketcher.Constraint("DistanceY", 15, 1, 15, 2, Q("30 mm")))
pad2 = body2.newObject("PartDesign::Pad", "Pad001")
pad2.Profile = sketch2
pad2.Length = 3

sketch3 = body2.newObject("Sketcher::SketchObject", "Sketch002")
sketch3.AttachmentSupport = (doc.getObject("XY_Plane001"), [""])
sketch3.MapMode = "FlatFace"
sketch3.addGeometry(Part.LineSegment(App.Vector(-75.2, 56, 0), App.Vector(-75.2, 0, 0)), False)
sketch3.addGeometry(Part.LineSegment(App.Vector(-75.2, 0, 0), App.Vector(-38.2, 0, 0)), False)
sketch3.addGeometry(Part.LineSegment(App.Vector(-38.2, 0, 0), App.Vector(-38.2, 14, 0)), False)
sketch3.addGeometry(Part.LineSegment(App.Vector(-38.2, 14, 0), App.Vector(-53.2, 14, 0)), False)
sketch3.addGeometry(Part.LineSegment(App.Vector(-53.2, 14, 0), App.Vector(-53.2, 26, 0)), False)
sketch3.addGeometry(Part.LineSegment(App.Vector(-53.2, 26, 0), App.Vector(-50.2, 26, 0)), False)
sketch3.addGeometry(Part.LineSegment(App.Vector(-50.2, 26, 0), App.Vector(-50.2, 29, 0)), False)
sketch3.addGeometry(Part.LineSegment(App.Vector(-50.2, 29, 0), App.Vector(-53.2, 29, 0)), False)
sketch3.addGeometry(Part.LineSegment(App.Vector(-53.2, 29, 0), App.Vector(-53.2, 56, 0)), False)
sketch3.addGeometry(Part.LineSegment(App.Vector(-53.2, 56, 0), App.Vector(-59.2, 56, 0)), False)
sketch3.addGeometry(Part.LineSegment(App.Vector(-59.2, 56, 0), App.Vector(-59.2, 59, 0)), False)
sketch3.addGeometry(Part.LineSegment(App.Vector(-59.2, 59, 0), App.Vector(-53.2, 59, 0)), False)
sketch3.addGeometry(Part.LineSegment(App.Vector(-53.2, 59, 0), App.Vector(-53.2, 92, 0)), False)
sketch3.addGeometry(Part.LineSegment(App.Vector(-53.2, 92, 0), App.Vector(-50.2, 92, 0)), False)
sketch3.addGeometry(Part.LineSegment(App.Vector(-50.2, 92, 0), App.Vector(-50.2, 95, 0)), False)
sketch3.addGeometry(Part.LineSegment(App.Vector(-50.2, 95, 0), App.Vector(-75.2, 95, 0)), False)
sketch3.addGeometry(Part.LineSegment(App.Vector(-75.2, 95, 0), App.Vector(-75.2, 59, 0)), False)
sketch3.addGeometry(Part.LineSegment(App.Vector(-75.2, 59, 0), App.Vector(-69.2, 59, 0)), False)
sketch3.addGeometry(Part.LineSegment(App.Vector(-69.2, 59, 0), App.Vector(-69.2, 56, 0)), False)
sketch3.addGeometry(Part.LineSegment(App.Vector(-69.2, 56, 0), App.Vector(-75.2, 56, 0)), False)
sketch3.addGeometry(Part.ArcOfCircle(Part.Circle(App.Vector(-64.2, 57.5, 0), App.Vector(0, 0, 1), 1.5), math.radians(-90), math.radians(0)), False)
sketch3.addGeometry(Part.ArcOfCircle(Part.Circle(App.Vector(-64.2, 57.5, 0), App.Vector(0, 0, 1), 1.5), math.radians(180), math.radians(270)), False)
sketch3.addGeometry(Part.ArcOfCircle(Part.Circle(App.Vector(-64.2, 57.5, 0), App.Vector(0, 0, 1), 1.5), math.radians(90), math.radians(180)), False)
sketch3.addGeometry(Part.ArcOfCircle(Part.Circle(App.Vector(-64.2, 57.5, 0), App.Vector(0, 0, 1), 1.5), math.radians(0), math.radians(90)), False)
sketch3.addGeometry(Part.LineSegment(App.Vector(-39.2, 2, 0), App.Vector(-42.2, 2, 0)), False)
sketch3.addGeometry(Part.LineSegment(App.Vector(-42.2, 2, 0), App.Vector(-42.2, 7, 0)), False)
sketch3.addGeometry(Part.LineSegment(App.Vector(-42.2, 7, 0), App.Vector(-39.2, 7, 0)), False)
sketch3.addGeometry(Part.LineSegment(App.Vector(-39.2, 7, 0), App.Vector(-39.2, 2, 0)), False)
sketch3.addConstraint(Sketcher.Constraint("Coincident", 0, 2, 1, 1))
sketch3.addConstraint(Sketcher.Constraint("Coincident", 1, 2, 2, 1))
sketch3.addConstraint(Sketcher.Constraint("Coincident", 2, 2, 3, 1))
sketch3.addConstraint(Sketcher.Constraint("Coincident", 3, 2, 4, 1))
sketch3.addConstraint(Sketcher.Constraint("Coincident", 4, 2, 5, 1))
sketch3.addConstraint(Sketcher.Constraint("Coincident", 5, 2, 6, 1))
sketch3.addConstraint(Sketcher.Constraint("Coincident", 6, 2, 7, 1))
sketch3.addConstraint(Sketcher.Constraint("Coincident", 7, 2, 8, 1))
sketch3.addConstraint(Sketcher.Constraint("Coincident", 8, 2, 9, 1))
sketch3.addConstraint(Sketcher.Constraint("Coincident", 9, 2, 10, 1))
sketch3.addConstraint(Sketcher.Constraint("Coincident", 10, 2, 11, 1))
sketch3.addConstraint(Sketcher.Constraint("Coincident", 11, 2, 12, 1))
sketch3.addConstraint(Sketcher.Constraint("Coincident", 12, 2, 13, 1))
sketch3.addConstraint(Sketcher.Constraint("Coincident", 13, 2, 14, 1))
sketch3.addConstraint(Sketcher.Constraint("Coincident", 14, 2, 15, 1))
sketch3.addConstraint(Sketcher.Constraint("Coincident", 15, 2, 16, 1))
sketch3.addConstraint(Sketcher.Constraint("Coincident", 16, 2, 17, 1))
sketch3.addConstraint(Sketcher.Constraint("Coincident", 17, 2, 18, 1))
sketch3.addConstraint(Sketcher.Constraint("Coincident", 18, 2, 19, 1))
sketch3.addConstraint(Sketcher.Constraint("Coincident", 19, 2, 0, 1))
sketch3.addConstraint(Sketcher.Constraint("Tangent", 20, 1, 21, 2))
sketch3.addConstraint(Sketcher.Constraint("Tangent", 21, 1, 22, 2))
sketch3.addConstraint(Sketcher.Constraint("Tangent", 22, 1, 23, 2))
sketch3.addConstraint(Sketcher.Constraint("Tangent", 23, 1, 20, 2))
sketch3.addConstraint(Sketcher.Constraint("Coincident", 24, 2, 25, 1))
sketch3.addConstraint(Sketcher.Constraint("Coincident", 25, 2, 26, 1))
sketch3.addConstraint(Sketcher.Constraint("Coincident", 26, 2, 27, 1))
sketch3.addConstraint(Sketcher.Constraint("Coincident", 27, 2, 24, 1))
sketch3.addConstraint(Sketcher.Constraint("Vertical", 0))
sketch3.addConstraint(Sketcher.Constraint("Horizontal", 1))
sketch3.addConstraint(Sketcher.Constraint("Vertical", 2))
sketch3.addConstraint(Sketcher.Constraint("Horizontal", 3))
sketch3.addConstraint(Sketcher.Constraint("Vertical", 4))
sketch3.addConstraint(Sketcher.Constraint("Horizontal", 5))
sketch3.addConstraint(Sketcher.Constraint("Vertical", 6))
sketch3.addConstraint(Sketcher.Constraint("Horizontal", 7))
sketch3.addConstraint(Sketcher.Constraint("Vertical", 8))
sketch3.addConstraint(Sketcher.Constraint("Horizontal", 9))
sketch3.addConstraint(Sketcher.Constraint("Vertical", 10))
sketch3.addConstraint(Sketcher.Constraint("Horizontal", 11))
sketch3.addConstraint(Sketcher.Constraint("Vertical", 12))
sketch3.addConstraint(Sketcher.Constraint("Horizontal", 13))
sketch3.addConstraint(Sketcher.Constraint("Vertical", 14))
sketch3.addConstraint(Sketcher.Constraint("Horizontal", 15))
sketch3.addConstraint(Sketcher.Constraint("Vertical", 16))
sketch3.addConstraint(Sketcher.Constraint("Horizontal", 17))
sketch3.addConstraint(Sketcher.Constraint("Vertical", 18))
sketch3.addConstraint(Sketcher.Constraint("Horizontal", 19))
sketch3.addConstraint(Sketcher.Constraint("Horizontal", 24))
sketch3.addConstraint(Sketcher.Constraint("Vertical", 25))
sketch3.addConstraint(Sketcher.Constraint("Horizontal", 26))
sketch3.addConstraint(Sketcher.Constraint("Vertical", 27))
sketch3.addConstraint(Sketcher.Constraint("Equal", 20, 21))
sketch3.addConstraint(Sketcher.Constraint("PointOnObject", 0, 2, -1))
sketch3.addConstraint(Sketcher.Constraint("Horizontal", 11, 2, 16, 2))
sketch3.addConstraint(Sketcher.Constraint("Horizontal", 9, 2, 18, 2))
sketch3.addConstraint(Sketcher.Constraint("Horizontal", 19, 2, 20, 1))
sketch3.addConstraint(Sketcher.Constraint("Horizontal", 23, 3, 21, 1))
sketch3.addConstraint(Sketcher.Constraint("Horizontal", 17, 2, 22, 1))
sketch3.addConstraint(Sketcher.Constraint("Horizontal", 21, 1, 23, 1))
sketch3.addConstraint(Sketcher.Constraint("Vertical", 4, 2, 7, 2))
sketch3.addConstraint(Sketcher.Constraint("Vertical", 8, 2, 11, 2))
sketch3.addConstraint(Sketcher.Constraint("Vertical", 6, 2, 13, 2))
sketch3.addConstraint(Sketcher.Constraint("Vertical", 0, 2, 15, 2))
sketch3.addConstraint(Sketcher.Constraint("Vertical", 23, 3, 20, 1))
sketch3.addConstraint(Sketcher.Constraint("Vertical", 20, 1, 22, 1))
sketch3.addConstraint(Sketcher.Constraint("Equal", 11, 17))
sketch3.addConstraint(Sketcher.Constraint("Equal", 13, 24))
sketch3.addConstraint(Sketcher.Constraint("Equal", 26, 6))
sketch3.addConstraint(Sketcher.Constraint("Equal", 6, 10))
sketch3.addConstraint(Sketcher.Constraint("Equal", 10, 14))
sketch3.addConstraint(Sketcher.Constraint("Radius", 20, Q("1.5 mm")))
sketch3.addConstraint(Sketcher.Constraint("DistanceX", 1, 1, 1, 2, Q("37 mm")))
sketch3.addConstraint(Sketcher.Constraint("DistanceX", 3, 2, 3, 1, Q("15 mm")))
sketch3.addConstraint(Sketcher.Constraint("DistanceX", 9, 2, 9, 1, Q("6 mm")))
sketch3.addConstraint(Sketcher.Constraint("DistanceY", 0, 2, 0, 1, Q("56 mm")))
sketch3.addConstraint(Sketcher.Constraint("DistanceY", 2, 1, 2, 2, Q("14 mm")))
sketch3.addConstraint(Sketcher.Constraint("DistanceY", 4, 1, 4, 2, Q("12 mm")))
sketch3.addConstraint(Sketcher.Constraint("DistanceY", 12, 1, 12, 2, Q("33 mm")))
sketch3.addConstraint(Sketcher.Constraint("DistanceY", 25, 1, 25, 2, Q("5 mm")))
sketch3.addConstraint(Sketcher.Constraint("DistanceY", -1, 1, 24, 2, Q("2 mm")))
sketch3.addConstraint(Sketcher.Constraint("DistanceX", 0, 2, 20, 3, Q("11 mm")))
sketch3.addConstraint(Sketcher.Constraint("DistanceX", 24, 2, 1, 2, Q("4 mm")))
sketch3.addConstraint(Sketcher.Constraint("DistanceX", 20, 3, -1, 1, Q("64.18623 mm")))
pad3 = body2.newObject("PartDesign::Pad", "Pad002")
pad3.Profile = sketch3
pad3.Length = 3

doc.recompute()
